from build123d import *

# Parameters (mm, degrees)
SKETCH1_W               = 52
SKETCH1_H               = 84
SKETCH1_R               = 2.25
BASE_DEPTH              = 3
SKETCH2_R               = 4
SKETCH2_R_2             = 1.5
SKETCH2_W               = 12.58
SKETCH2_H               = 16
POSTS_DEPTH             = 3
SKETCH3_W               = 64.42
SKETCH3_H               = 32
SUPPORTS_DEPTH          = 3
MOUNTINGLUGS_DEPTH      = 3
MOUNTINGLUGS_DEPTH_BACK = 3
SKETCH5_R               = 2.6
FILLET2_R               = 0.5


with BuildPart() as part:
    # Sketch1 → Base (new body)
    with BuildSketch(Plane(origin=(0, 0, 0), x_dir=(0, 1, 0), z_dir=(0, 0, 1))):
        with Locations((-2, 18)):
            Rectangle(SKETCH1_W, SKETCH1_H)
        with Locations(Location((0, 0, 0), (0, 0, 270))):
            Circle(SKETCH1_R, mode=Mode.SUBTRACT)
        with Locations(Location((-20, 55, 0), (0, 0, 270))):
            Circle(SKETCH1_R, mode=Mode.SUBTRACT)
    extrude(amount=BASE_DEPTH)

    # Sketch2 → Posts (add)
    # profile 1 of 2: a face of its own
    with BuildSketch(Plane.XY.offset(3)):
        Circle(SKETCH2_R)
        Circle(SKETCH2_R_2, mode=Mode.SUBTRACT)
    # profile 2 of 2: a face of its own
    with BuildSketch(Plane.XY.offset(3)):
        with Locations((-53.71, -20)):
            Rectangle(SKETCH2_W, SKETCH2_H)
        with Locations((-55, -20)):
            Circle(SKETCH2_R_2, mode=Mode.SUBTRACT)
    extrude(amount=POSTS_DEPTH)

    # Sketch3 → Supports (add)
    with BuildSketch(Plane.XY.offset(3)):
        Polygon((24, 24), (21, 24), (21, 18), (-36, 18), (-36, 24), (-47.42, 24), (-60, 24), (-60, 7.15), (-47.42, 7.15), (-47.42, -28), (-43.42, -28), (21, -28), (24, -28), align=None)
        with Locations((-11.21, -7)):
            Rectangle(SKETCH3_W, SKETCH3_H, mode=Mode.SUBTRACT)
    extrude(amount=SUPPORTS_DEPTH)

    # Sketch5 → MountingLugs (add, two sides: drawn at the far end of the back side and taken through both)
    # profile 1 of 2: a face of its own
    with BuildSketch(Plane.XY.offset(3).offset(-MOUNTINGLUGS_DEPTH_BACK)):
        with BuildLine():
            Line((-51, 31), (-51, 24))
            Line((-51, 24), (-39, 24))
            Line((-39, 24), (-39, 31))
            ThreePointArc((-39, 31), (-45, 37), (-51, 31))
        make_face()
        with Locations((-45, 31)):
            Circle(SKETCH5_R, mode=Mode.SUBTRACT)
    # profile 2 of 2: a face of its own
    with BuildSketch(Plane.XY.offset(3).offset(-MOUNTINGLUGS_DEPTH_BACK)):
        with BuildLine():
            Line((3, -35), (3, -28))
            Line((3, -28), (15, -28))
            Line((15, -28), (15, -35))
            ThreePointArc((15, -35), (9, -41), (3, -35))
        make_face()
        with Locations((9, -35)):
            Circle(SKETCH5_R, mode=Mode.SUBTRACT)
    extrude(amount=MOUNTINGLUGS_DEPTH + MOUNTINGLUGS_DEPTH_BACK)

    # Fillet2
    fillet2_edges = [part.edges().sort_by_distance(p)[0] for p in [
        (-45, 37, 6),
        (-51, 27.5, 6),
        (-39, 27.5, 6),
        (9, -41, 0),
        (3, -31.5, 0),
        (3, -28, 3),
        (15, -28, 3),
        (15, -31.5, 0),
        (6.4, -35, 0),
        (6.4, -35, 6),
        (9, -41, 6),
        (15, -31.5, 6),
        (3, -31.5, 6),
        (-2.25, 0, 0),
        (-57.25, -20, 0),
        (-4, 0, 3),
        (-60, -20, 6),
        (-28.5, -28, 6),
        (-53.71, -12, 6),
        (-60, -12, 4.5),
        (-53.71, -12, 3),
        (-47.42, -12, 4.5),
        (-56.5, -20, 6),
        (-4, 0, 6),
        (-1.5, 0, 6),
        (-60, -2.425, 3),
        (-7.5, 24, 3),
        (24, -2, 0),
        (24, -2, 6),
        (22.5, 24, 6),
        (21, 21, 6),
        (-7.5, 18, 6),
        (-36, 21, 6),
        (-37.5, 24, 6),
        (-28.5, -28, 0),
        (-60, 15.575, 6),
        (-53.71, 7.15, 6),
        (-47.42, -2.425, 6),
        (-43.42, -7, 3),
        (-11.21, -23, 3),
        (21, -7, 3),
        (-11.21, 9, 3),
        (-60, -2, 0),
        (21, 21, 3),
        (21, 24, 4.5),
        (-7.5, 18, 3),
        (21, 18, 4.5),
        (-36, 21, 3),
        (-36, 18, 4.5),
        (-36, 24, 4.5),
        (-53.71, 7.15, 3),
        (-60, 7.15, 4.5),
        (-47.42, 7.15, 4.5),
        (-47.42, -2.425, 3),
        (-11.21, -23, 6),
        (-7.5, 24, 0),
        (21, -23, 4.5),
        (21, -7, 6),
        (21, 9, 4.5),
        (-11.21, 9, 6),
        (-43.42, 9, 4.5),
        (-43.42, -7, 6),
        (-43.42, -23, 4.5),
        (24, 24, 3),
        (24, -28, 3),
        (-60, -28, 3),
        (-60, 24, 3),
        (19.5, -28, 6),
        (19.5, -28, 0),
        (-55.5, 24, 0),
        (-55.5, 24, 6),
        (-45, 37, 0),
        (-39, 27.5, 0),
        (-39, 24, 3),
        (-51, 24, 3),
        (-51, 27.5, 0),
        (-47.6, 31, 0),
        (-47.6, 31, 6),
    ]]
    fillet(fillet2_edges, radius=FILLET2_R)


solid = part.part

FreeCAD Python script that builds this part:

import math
import FreeCAD as App
import Part
import Sketcher
Q = App.Units.Quantity


def edges_at(feature, points):
    """Names of the edges that pass closest to the given points."""
    edges = feature.Shape.Edges
    near = lambda p: min(range(len(edges)), key=lambda i: edges[i].distToShape(Part.Vertex(*p))[0])
    return sorted({f"Edge{near(p) + 1}" for p in points})


def add_polygon(sketch, points):
    """Adds a closed chain of lines whose ends are joined by coincident constraints."""
    first, n = sketch.GeometryCount, len(points)
    for a, b in zip(points, points[1:] + points[:1]):
        sketch.addGeometry(Part.LineSegment(App.Vector(*a, 0), App.Vector(*b, 0)), False)
    for i in range(n):
        sketch.addConstraint(Sketcher.Constraint("Coincident", first + i, 2, first + (i + 1) % n, 1))

doc = App.newDocument("Part")
params = doc.addObject("Spreadsheet::Sheet", "Params")
for row, (alias, value) in enumerate([
    ("sketch1_diameter", "4.5 mm"),
    ("sketch1_width", "84 mm"),
    ("sketch1_height", "52 mm"),
    ("pad1_length", "3 mm"),
    ("sketch2_diameter", "8 mm"),
    ("sketch2_diameter2", "3 mm"),
    ("sketch2_height", "16 mm"),
    ("sketch2_width", "12.58 mm"),
    ("pad2_length", "3 mm"),
    ("sketch3_width", "3 mm"),
    ("sketch3_width2", "57 mm"),
    ("sketch3_width3", "24 mm"),
    ("sketch3_height", "6 mm"),
    ("sketch3_height2", "52 mm"),
    ("pad3_length", "3 mm"),
    ("sketch4_radius", "6 mm"),
    ("sketch4_diameter", "5.2 mm"),
    ("sketch4_height", "7 mm"),
    ("pad4_length", "3 mm"),
    ("pad4_length2", "3 mm"),
    ("fillet_radius", "0.5 mm"),
], start=1):
    params.set(f"A{row}", alias)
    params.set(f"B{row}", "=" + value)
    params.setAlias(f"B{row}", alias)

body = doc.addObject("PartDesign::Body", "Body")

# Sketch on XY plane
sketch1 = doc.addObject("Sketcher::SketchObject", "Sketch")
body.addObject(sketch1)
sketch1.AttachmentSupport = (doc.XY_Plane, [""])
sketch1.MapMode = "FlatFace"
add_polygon(sketch1, [(-60, -28), (24, -28), (24, 24), (-60, 24)])  # lines 0-3
sketch1.addGeometry(Part.Circle(App.Vector(0, 0, 0), App.Vector(0, 0, 1), 2.2), False)  # 4
sketch1.addGeometry(Part.Circle(App.Vector(-55, -20, 0), App.Vector(0, 0, 1), 2.2), False)  # 5
sketch1.addConstraint([
    Sketcher.Constraint("Horizontal", 0),
    Sketcher.Constraint("Vertical", 1),
    Sketcher.Constraint("Horizontal", 2),
    Sketcher.Constraint("Vertical", 3),
    Sketcher.Constraint("Coincident", 4, 3, -1, 1),
    Sketcher.Constraint("Equal", 4, 5),
    Sketcher.Constraint("Diameter", 4, Q("4.5 mm")),
    Sketcher.Constraint("DistanceX", 0, 1, 0, 2, Q("84 mm")),
    Sketcher.Constraint("DistanceY", 1, 1, 1, 2, Q("52 mm")),
    Sketcher.Constraint("DistanceX", 5, 3, -1, 1, Q("55 mm")),
    Sketcher.Constraint("DistanceY", 5, 3, -1, 1, Q("20 mm")),
    Sketcher.Constraint("DistanceX", -1, 1, 0, 2, Q("24 mm")),
    Sketcher.Constraint("DistanceY", 0, 2, -1, 1, Q("28 mm")),
])
sketch1.setExpression("Constraints[10]", "Params.sketch1_diameter")
sketch1.setExpression("Constraints[11]", "Params.sketch1_width")
sketch1.setExpression("Constraints[12]", "Params.sketch1_height")
pad1 = doc.addObject("PartDesign::Pad", "Pad")
body.addObject(pad1)
pad1.Profile = sketch1
pad1.setExpression("Length", "Params.pad1_length")

# Sketch on XY plane
sketch2 = doc.addObject("Sketcher::SketchObject", "Sketch001")
body.addObject(sketch2)
sketch2.AttachmentSupport = (doc.XY_Plane, [""])
sketch2.MapMode = "FlatFace"
sketch2.AttachmentOffset = App.Placement(App.Vector(0, 0, 3), App.Rotation())
sketch2.addGeometry(Part.Circle(App.Vector(0, 0, 0), App.Vector(0, 0, 1), 4), False)  # 0
sketch2.addGeometry(Part.Circle(App.Vector(0, 0, 0), App.Vector(0, 0, 1), 1.5), False)  # 1
add_polygon(sketch2, [(-60, -12), (-60, -28), (-47.4, -28), (-47.4, -12)])  # lines 2-5
sketch2.addGeometry(Part.Circle(App.Vector(-55, -20, 0), App.Vector(0, 0, 1), 1.5), False)  # 6
sketch2.addConstraint([
    Sketcher.Constraint("Vertical", 2),
    Sketcher.Constraint("Horizontal", 3),
    Sketcher.Constraint("Vertical", 4),
    Sketcher.Constraint("Horizontal", 5),
    Sketcher.Constraint("Coincident", 0, 3, -1, 1),
    Sketcher.Constraint("Coincident", 1, 3, -1, 1),
    Sketcher.Constraint("Equal", 1, 6),
    Sketcher.Constraint("Diameter", 0, Q("8 mm")),
    Sketcher.Constraint("Diameter", 1, Q("3 mm")),
    Sketcher.Constraint("DistanceY", 2, 2, 2, 1, Q("16 mm")),
    Sketcher.Constraint("DistanceX", 6, 3, -1, 1, Q("55 mm")),
    Sketcher.Constraint("DistanceY", 6, 3, -1, 1, Q("20 mm")),
    Sketcher.Constraint("DistanceX", 2, 2, -1, 1, Q("60 mm")),
    Sketcher.Constraint("DistanceY", 2, 2, -1, 1, Q("28 mm")),
    Sketcher.Constraint("DistanceX", 3, 1, 3, 2, Q("12.58 mm")),
])
sketch2.setExpression("Constraints[11]", "Params.sketch2_diameter")
sketch2.setExpression("Constraints[12]", "Params.sketch2_diameter2")
sketch2.setExpression("Constraints[13]", "Params.sketch2_height")
sketch2.setExpression("Constraints[18]", "Params.sketch2_width")
pad2 = doc.addObject("PartDesign::Pad", "Pad001")
body.addObject(pad2)
pad2.Profile = sketch2
pad2.setExpression("Length", "Params.pad2_length")

# Sketch on XY plane
sketch3 = doc.addObject("Sketcher::SketchObject", "Sketch002")
body.addObject(sketch3)
sketch3.AttachmentSupport = (doc.XY_Plane, [""])
sketch3.MapMode = "FlatFace"
sketch3.AttachmentOffset = App.Placement(App.Vector(0, 0, 3), App.Rotation())
add_polygon(sketch3, [(24, 24), (21, 24), (21, 18), (-36, 18), (-36, 24), (-60, 24), (-60, 7.2), (-47.4, 7.2), (-47.4, -28), (24, -28)])  # lines 0-9
add_polygon(sketch3, [(21, -23), (-43.4, -23), (-43.4, 9), (21, 9)])  # lines 10-13
sketch3.addConstraint([
    Sketcher.Constraint("Horizontal", 0),
    Sketcher.Constraint("Vertical", 1),
    Sketcher.Constraint("Horizontal", 2),
    Sketcher.Constraint("Vertical", 3),
    Sketcher.Constraint("Horizontal", 4),
    Sketcher.Constraint("Vertical", 5),
    Sketcher.Constraint("Horizontal", 6),
    Sketcher.Constraint("Vertical", 7),
    Sketcher.Constraint("Horizontal", 8),
    Sketcher.Constraint("Vertical", 9),
    Sketcher.Constraint("Horizontal", 10),
    Sketcher.Constraint("Vertical", 11),
    Sketcher.Constraint("Horizontal", 12),
    Sketcher.Constraint("Vertical", 13),
    Sketcher.Constraint("Horizontal", 0, 2, 3, 2),
    Sketcher.Constraint("Vertical", 1, 2, 12, 2),
    Sketcher.Constraint("DistanceX", 0, 2, 0, 1, Q("3 mm")),
    Sketcher.Constraint("DistanceX", 2, 2, 2, 1, Q("57 mm")),
    Sketcher.Constraint("DistanceX", 4, 2, 4, 1, Q("24 mm")),
    Sketcher.Constraint("DistanceY", 1, 2, 1, 1, Q("6 mm")),
    Sketcher.Constraint("DistanceY", 9, 1, 9, 2, Q("52 mm")),
    Sketcher.Constraint("DistanceY", 11, 1, 11, 2, Q("32 mm")),
    Sketcher.Constraint("DistanceX", -1, 1, 0, 2, Q("21 mm")),
    Sketcher.Constraint("DistanceY", -1, 1, 0, 2, Q("24 mm")),
    Sketcher.Constraint("DistanceY", 10, 2, -1, 1, Q("23 mm")),
    Sketcher.Constraint("DistanceX", 7, 2, 10, 2, Q("4 mm")),
    Sketcher.Constraint("DistanceX", 6, 1, 6, 2, Q("12.58 mm")),
    Sketcher.Constraint("DistanceY", 5, 2, 5, 1, Q("16.85 mm")),
])
sketch3.setExpression("Constraints[30]", "Params.sketch3_width")
sketch3.setExpression("Constraints[31]", "Params.sketch3_width2")
sketch3.setExpression("Constraints[32]", "Params.sketch3_width3")
sketch3.setExpression("Constraints[33]", "Params.sketch3_height")
sketch3.setExpression("Constraints[34]", "Params.sketch3_height2")
pad3 = doc.addObject("PartDesign::Pad", "Pad002")
body.addObject(pad3)
pad3.Profile = sketch3
pad3.setExpression("Length", "Params.pad3_length")

# Sketch on XY plane
sketch4 = doc.addObject("Sketcher::SketchObject", "Sketch003")
body.addObject(sketch4)
sketch4.AttachmentSupport = (doc.XY_Plane, [""])
sketch4.MapMode = "FlatFace"
sketch4.AttachmentOffset = App.Placement(App.Vector(0, 0, 3), App.Rotation())
sketch4.addGeometry([
    Part.LineSegment(App.Vector(-51, 31, 0), App.Vector(-51, 24, 0)),  # 0
    Part.LineSegment(App.Vector(-51, 24, 0), App.Vector(-39, 24, 0)),  # 1
    Part.LineSegment(App.Vector(-39, 24, 0), App.Vector(-39, 31, 0)),  # 2
    Part.ArcOfCircle(Part.Circle(App.Vector(-45, 31, 0), App.Vector(0, 0, 1), 6), math.radians(0), math.radians(180)),  # 3
    Part.Circle(App.Vector(-45, 31, 0), App.Vector(0, 0, 1), 2.6),  # 4
    Part.LineSegment(App.Vector(3, -28, 0), App.Vector(3, -35, 0)),  # 5
    Part.ArcOfCircle(Part.Circle(App.Vector(9, -35, 0), App.Vector(0, 0, 1), 6), math.radians(180), math.radians(360)),  # 6
    Part.LineSegment(App.Vector(15, -35, 0), App.Vector(15, -28, 0)),  # 7
    Part.LineSegment(App.Vector(15, -28, 0), App.Vector(3, -28, 0)),  # 8
    Part.Circle(App.Vector(9, -35, 0), App.Vector(0, 0, 1), 2.6),  # 9
], False)
sketch4.addConstraint([
    Sketcher.Constraint("Coincident", 0, 2, 1, 1),
    Sketcher.Constraint("Coincident", 1, 2, 2, 1),
    Sketcher.Constraint("Tangent", 2, 2, 3, 1),
    Sketcher.Constraint("Tangent", 3, 2, 0, 1),
    Sketcher.Constraint("Tangent", 5, 2, 6, 1),
    Sketcher.Constraint("Tangent", 6, 2, 7, 1),
    Sketcher.Constraint("Coincident", 7, 2, 8, 1),
    Sketcher.Constraint("Coincident", 8, 2, 5, 1),
    Sketcher.Constraint("Vertical", 0),
    Sketcher.Constraint("Horizontal", 1),
    Sketcher.Constraint("Vertical", 2),
    Sketcher.Constraint("Vertical", 5),
    Sketcher.Constraint("Vertical", 7),
    Sketcher.Constraint("Horizontal", 8),
    Sketcher.Constraint("Coincident", 4, 3, 3, 3),
    Sketcher.Constraint("Coincident", 9, 3, 6, 3),
    Sketcher.Constraint("Equal", 3, 6),
    Sketcher.Constraint("Equal", 4, 9),
    Sketcher.Constraint("Equal", 2, 5),
    Sketcher.Constraint("Radius", 3, Q("6 mm")),
    Sketcher.Constraint("Diameter", 4, Q("5.2 mm")),
    Sketcher.Constraint("DistanceY", 0, 2, 0, 1, Q("7 mm")),
    Sketcher.Constraint("DistanceX", 3, 3, -1, 1, Q("45 mm")),
    Sketcher.Constraint("DistanceY", -1, 1, 3, 3, Q("31 mm")),
    Sketcher.Constraint("DistanceX", -1, 1, 6, 3, Q("9 mm")),
    Sketcher.Constraint("DistanceY", 6, 3, -1, 1, Q("35 mm")),
])
sketch4.setExpression("Constraints[19]", "Params.sketch4_radius")
sketch4.setExpression("Constraints[20]", "Params.sketch4_diameter")
sketch4.setExpression("Constraints[21]", "Params.sketch4_height")
pad4 = doc.addObject("PartDesign::Pad", "Pad003")
body.addObject(pad4)
pad4.Profile = sketch4
pad4.Type = "TwoLengths"
pad4.setExpression("Length", "Params.pad4_length")
pad4.setExpression("Length2", "Params.pad4_length2")
doc.recompute()

fillet = doc.addObject("PartDesign::Fillet", "Fillet")
body.addObject(fillet)
fillet.Base = (pad4, edges_at(pad4, [
    (-45, 37, 6),
    (-51, 27.5, 6),
    (-39, 27.5, 6),
    (9, -41, 0),
    (3, -31.5, 0),
    (3, -28, 3),
    (15, -28, 3),
    (15, -31.5, 0),
    (6.4, -35, 0),
    (6.4, -35, 6),
    (9, -41, 6),
    (15, -31.5, 6),
    (3, -31.5, 6),
    (-2.25, 0, 0),
    (-57.25, -20, 0),
    (-4, 0, 3),
    (-60, -20, 6),
    (-28.5, -28, 6),
    (-53.71, -12, 6),
    (-60, -12, 4.5),
    (-53.71, -12, 3),
    (-47.42, -12, 4.5),
    (-56.5, -20, 6),
    (-4, 0, 6),
    (-1.5, 0, 6),
    (-60, -2.425, 3),
    (-7.5, 24, 3),
    (24, -2, 0),
    (24, -2, 6),
    (22.5, 24, 6),
    (21, 21, 6),
    (-7.5, 18, 6),
    (-36, 21, 6),
    (-37.5, 24, 6),
    (-28.5, -28, 0),
    (-60, 15.575, 6),
    (-53.71, 7.15, 6),
    (-47.42, -2.425, 6),
    (-43.42, -7, 3),
    (-11.21, -23, 3),
    (21, -7, 3),
    (-11.21, 9, 3),
    (-60, -2, 0),
    (21, 21, 3),
    (21, 24, 4.5),
    (-7.5, 18, 3),
    (21, 18, 4.5),
    (-36, 21, 3),
    (-36, 18, 4.5),
    (-36, 24, 4.5),
    (-53.71, 7.15, 3),
    (-60, 7.15, 4.5),
    (-47.42, 7.15, 4.5),
    (-47.42, -2.425, 3),
    (-11.21, -23, 6),
    (-7.5, 24, 0),
    (21, -23, 4.5),
    (21, -7, 6),
    (21, 9, 4.5),
    (-11.21, 9, 6),
    (-43.42, 9, 4.5),
    (-43.42, -7, 6),
    (-43.42, -23, 4.5),
    (24, 24, 3),
    (24, -28, 3),
    (-60, -28, 3),
    (-60, 24, 3),
    (19.5, -28, 6),
    (19.5, -28, 0),
    (-55.5, 24, 0),
    (-55.5, 24, 6),
    (-45, 37, 0),
    (-39, 27.5, 0),
    (-39, 24, 3),
    (-51, 24, 3),
    (-51, 27.5, 0),
    (-47.6, 31, 0),
    (-47.6, 31, 6),
]))
fillet.setExpression("Radius", "Params.fillet_radius")

doc.recompute()
